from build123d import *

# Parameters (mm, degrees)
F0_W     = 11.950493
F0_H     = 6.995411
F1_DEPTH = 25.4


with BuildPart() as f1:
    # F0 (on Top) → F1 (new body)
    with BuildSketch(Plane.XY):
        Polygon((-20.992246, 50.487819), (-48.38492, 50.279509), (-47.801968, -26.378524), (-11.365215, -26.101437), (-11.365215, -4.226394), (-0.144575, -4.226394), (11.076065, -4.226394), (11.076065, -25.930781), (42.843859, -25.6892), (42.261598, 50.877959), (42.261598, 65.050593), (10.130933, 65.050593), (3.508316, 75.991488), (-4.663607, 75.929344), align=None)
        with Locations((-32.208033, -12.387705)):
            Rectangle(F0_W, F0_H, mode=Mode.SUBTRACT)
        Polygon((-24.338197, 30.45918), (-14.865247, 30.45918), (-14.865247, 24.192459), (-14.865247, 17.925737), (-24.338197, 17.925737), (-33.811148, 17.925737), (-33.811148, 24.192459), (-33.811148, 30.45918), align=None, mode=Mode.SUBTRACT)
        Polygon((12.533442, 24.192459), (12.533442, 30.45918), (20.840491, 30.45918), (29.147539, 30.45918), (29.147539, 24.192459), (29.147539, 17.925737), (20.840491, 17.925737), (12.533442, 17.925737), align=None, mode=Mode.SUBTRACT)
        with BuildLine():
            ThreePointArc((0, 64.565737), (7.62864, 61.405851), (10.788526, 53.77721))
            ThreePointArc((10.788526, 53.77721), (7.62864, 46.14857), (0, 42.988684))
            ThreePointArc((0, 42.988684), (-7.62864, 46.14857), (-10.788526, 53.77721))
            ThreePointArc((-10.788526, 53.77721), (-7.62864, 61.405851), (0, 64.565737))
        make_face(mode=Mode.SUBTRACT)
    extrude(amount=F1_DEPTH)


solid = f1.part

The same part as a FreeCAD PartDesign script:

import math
import FreeCAD as App
import Part
import Sketcher
Q = App.Units.Quantity


def add_polygon(sketch, points):
    """Adds a closed chain of lines whose ends are joined by coincident constraints."""
    first, n = sketch.GeometryCount, len(points)
    for a, b in zip(points, points[1:] + points[:1]):
        sketch.addGeometry(Part.LineSegment(App.Vector(*a, 0), App.Vector(*b, 0)), False)
    for i in range(n):
        sketch.addConstraint(Sketcher.Constraint("Coincident", first + i, 2, first + (i + 1) % n, 1))

doc = App.newDocument("Part")
params = doc.addObject("Spreadsheet::Sheet", "Params")
for row, (alias, value) in enumerate([
    ("pad1_length", "1 in"),
], start=1):
    params.set(f"A{row}", alias)
    params.set(f"B{row}", "=" + value)
    params.setAlias(f"B{row}", alias)

body = doc.addObject("PartDesign::Body", "Body")

# Sketch on XY plane
sketch1 = doc.addObject("Sketcher::SketchObject", "Sketch")
body.addObject(sketch1)
sketch1.AttachmentSupport = (doc.XY_Plane, [""])
sketch1.MapMode = "FlatFace"
add_polygon(sketch1, [(-20.992246, 50.487819), (-48.38492, 50.279509), (-47.801968, -26.378524), (-11.365215, -26.101437), (-11.365215, -4.226394), (11.076065, -4.226394), (11.076065, -25.930781), (42.843859, -25.6892), (42.261598, 50.877959), (42.261598, 65.050593), (10.130933, 65.050593), (3.508316, 75.991488), (-4.663607, 75.929344)])  # lines 0-12
add_polygon(sketch1, [(-26.232786, -15.885411), (-38.183279, -15.885411), (-38.183279, -8.89), (-26.232786, -8.89)])  # lines 13-16
add_polygon(sketch1, [(-33.811148, 30.45918), (-14.865247, 30.45918), (-14.865247, 17.925737), (-33.811148, 17.925737)])  # lines 17-20
add_polygon(sketch1, [(12.533442, 17.925737), (12.533442, 30.45918), (29.147539, 30.45918), (29.147539, 17.925737)])  # lines 21-24
sketch1.addGeometry(Part.ArcOfCircle(Part.Circle(App.Vector(0, 53.777211, 0), App.Vector(0, 0, 1), 10.788526), math.radians(89.999998), math.radians(180.000007)), False)  # 25
sketch1.addGeometry(Part.ArcOfCircle(Part.Circle(App.Vector(0, 53.777211, 0), App.Vector(0, 0, 1), 10.788526), math.radians(-0.000007), math.radians(90.000002)), False)  # 26
sketch1.addGeometry(Part.ArcOfCircle(Part.Circle(App.Vector(0, 53.77721, 0), App.Vector(0, 0, 1), 10.788526), math.radians(-90.000002), math.radians(0.000002)), False)  # 27
sketch1.addGeometry(Part.ArcOfCircle(Part.Circle(App.Vector(0, 53.77721, 0), App.Vector(0, 0, 1), 10.788526), math.radians(179.999998), math.radians(270.000002)), False)  # 28
sketch1.addConstraint([
    Sketcher.Constraint("Coincident", 25, 1, 26, 2),
    Sketcher.Constraint("Coincident", 26, 1, 27, 2),
    Sketcher.Constraint("Coincident", 27, 1, 28, 2),
    Sketcher.Constraint("Coincident", 28, 1, 25, 2),
    Sketcher.Constraint("Vertical", 3),
    Sketcher.Constraint("Horizontal", 4),
    Sketcher.Constraint("Vertical", 5),
    Sketcher.Constraint("Vertical", 8),
    Sketcher.Constraint("Horizontal", 9),
    Sketcher.Constraint("Horizontal", 13),
    Sketcher.Constraint("Vertical", 14),
    Sketcher.Constraint("Horizontal", 15),
    Sketcher.Constraint("Vertical", 16),
    Sketcher.Constraint("Horizontal", 17),
    Sketcher.Constraint("Vertical", 18),
    Sketcher.Constraint("Horizontal", 19),
    Sketcher.Constraint("Vertical", 20),
    Sketcher.Constraint("Vertical", 21),
    Sketcher.Constraint("Horizontal", 22),
    Sketcher.Constraint("Vertical", 23),
    Sketcher.Constraint("Horizontal", 24),
    Sketcher.Constraint("Coincident", 26, 3, 25, 3),
    Sketcher.Constraint("Coincident", 27, 3, 25, 3),
    Sketcher.Constraint("PointOnObject", 25, 3, -2),
    Sketcher.Constraint("PointOnObject", 28, 3, -2),
    Sketcher.Constraint("PointOnObject", 25, 1, -2),
    Sketcher.Constraint("PointOnObject", 27, 1, -2),
    Sketcher.Constraint("DistanceY", 14, 2, -1, 1, Q("0.35 in")),
    Sketcher.Constraint("DistanceX", 17, 1, 17, 2, Q("18.945901 mm")),
    Sketcher.Constraint("Radius", 25, Q("10.788526 mm")),
    Sketcher.Constraint("DistanceX", 4, 1, 4, 2, Q("22.44128 mm")),
    Sketcher.Constraint("DistanceY", 14, 1, 14, 2, Q("6.995411 mm")),
    Sketcher.Constraint("DistanceY", 6, 2, -1, 1, Q("25.6892 mm")),
    Sketcher.Constraint("DistanceY", 0, 2, 28, 3, Q("3.497701 mm")),
    Sketcher.Constraint("DistanceX", 28, 3, 7, 2, Q("42.261598 mm")),
    Sketcher.Constraint("DistanceX", 12, 2, 17, 2, Q("6.126999 mm")),
    Sketcher.Constraint("Distance", 1, Q("76.66025 mm")),
    Sketcher.Constraint("Distance", 11, Q("8.172159 mm")),
    Sketcher.Constraint("DistanceX", 9, 2, 9, 1, Q("32.130665 mm")),
    Sketcher.Constraint("DistanceX", 13, 2, 13, 1, Q("11.950493 mm")),
    Sketcher.Constraint("DistanceX", 22, 1, 22, 2, Q("16.614097 mm")),
    Sketcher.Constraint("DistanceY", 3, 1, 3, 2, Q("21.875043 mm")),
    Sketcher.Constraint("DistanceY", 5, 2, 5, 1, Q("21.704387 mm")),
    Sketcher.Constraint("DistanceY", 8, 1, 8, 2, Q("14.172634 mm")),
    Sketcher.Constraint("DistanceY", 18, 2, 18, 1, Q("12.533443 mm")),
    Sketcher.Constraint("DistanceY", 21, 1, 21, 2, Q("12.533443 mm")),
    Sketcher.Constraint("DistanceY", -1, 1, 25, 3, Q("53.777211 mm")),
    Sketcher.Constraint("DistanceX", 0, 2, -1, 1, Q("48.38492 mm")),
    Sketcher.Constraint("DistanceX", 1, 2, -1, 1, Q("47.801968 mm")),
    Sketcher.Constraint("DistanceY", 5, 2, -1, 1, Q("25.930781 mm")),
    Sketcher.Constraint("DistanceX", -1, 1, 6, 2, Q("42.843859 mm")),
    Sketcher.Constraint("DistanceY", -1, 1, 7, 2, Q("50.877959 mm")),
    Sketcher.Constraint("DistanceY", -1, 1, 10, 2, Q("75.991488 mm")),
    Sketcher.Constraint("DistanceY", -1, 1, 12, 2, Q("50.487819 mm")),
    Sketcher.Constraint("DistanceX", 13, 2, -1, 1, Q("38.183279 mm")),
    Sketcher.Constraint("DistanceY", -1, 1, 17, 2, Q("30.45918 mm")),
    Sketcher.Constraint("DistanceX", 19, 2, -1, 1, Q("33.811148 mm")),
    Sketcher.Constraint("DistanceY", -1, 1, 21, 2, Q("30.45918 mm")),
    Sketcher.Constraint("DistanceX", -1, 1, 22, 2, Q("29.147539 mm")),
    Sketcher.Constraint("DistanceY", -1, 1, 26, 1, Q("53.77721 mm")),
    Sketcher.Constraint("DistanceY", -1, 1, 28, 1, Q("53.77721 mm")),
    Sketcher.Constraint("DistanceX", 11, 2, 9, 2, Q("14.79454 mm")),
    Sketcher.Constraint("DistanceY", 9, 2, 11, 2, Q("10.878751 mm")),
    Sketcher.Constraint("DistanceX", 15, 2, 3, 2, Q("14.867572 mm")),
])
pad1 = doc.addObject("PartDesign::Pad", "Pad")
body.addObject(pad1)
pad1.Profile = sketch1
pad1.setExpression("Length", "Params.pad1_length")

doc.recompute()
